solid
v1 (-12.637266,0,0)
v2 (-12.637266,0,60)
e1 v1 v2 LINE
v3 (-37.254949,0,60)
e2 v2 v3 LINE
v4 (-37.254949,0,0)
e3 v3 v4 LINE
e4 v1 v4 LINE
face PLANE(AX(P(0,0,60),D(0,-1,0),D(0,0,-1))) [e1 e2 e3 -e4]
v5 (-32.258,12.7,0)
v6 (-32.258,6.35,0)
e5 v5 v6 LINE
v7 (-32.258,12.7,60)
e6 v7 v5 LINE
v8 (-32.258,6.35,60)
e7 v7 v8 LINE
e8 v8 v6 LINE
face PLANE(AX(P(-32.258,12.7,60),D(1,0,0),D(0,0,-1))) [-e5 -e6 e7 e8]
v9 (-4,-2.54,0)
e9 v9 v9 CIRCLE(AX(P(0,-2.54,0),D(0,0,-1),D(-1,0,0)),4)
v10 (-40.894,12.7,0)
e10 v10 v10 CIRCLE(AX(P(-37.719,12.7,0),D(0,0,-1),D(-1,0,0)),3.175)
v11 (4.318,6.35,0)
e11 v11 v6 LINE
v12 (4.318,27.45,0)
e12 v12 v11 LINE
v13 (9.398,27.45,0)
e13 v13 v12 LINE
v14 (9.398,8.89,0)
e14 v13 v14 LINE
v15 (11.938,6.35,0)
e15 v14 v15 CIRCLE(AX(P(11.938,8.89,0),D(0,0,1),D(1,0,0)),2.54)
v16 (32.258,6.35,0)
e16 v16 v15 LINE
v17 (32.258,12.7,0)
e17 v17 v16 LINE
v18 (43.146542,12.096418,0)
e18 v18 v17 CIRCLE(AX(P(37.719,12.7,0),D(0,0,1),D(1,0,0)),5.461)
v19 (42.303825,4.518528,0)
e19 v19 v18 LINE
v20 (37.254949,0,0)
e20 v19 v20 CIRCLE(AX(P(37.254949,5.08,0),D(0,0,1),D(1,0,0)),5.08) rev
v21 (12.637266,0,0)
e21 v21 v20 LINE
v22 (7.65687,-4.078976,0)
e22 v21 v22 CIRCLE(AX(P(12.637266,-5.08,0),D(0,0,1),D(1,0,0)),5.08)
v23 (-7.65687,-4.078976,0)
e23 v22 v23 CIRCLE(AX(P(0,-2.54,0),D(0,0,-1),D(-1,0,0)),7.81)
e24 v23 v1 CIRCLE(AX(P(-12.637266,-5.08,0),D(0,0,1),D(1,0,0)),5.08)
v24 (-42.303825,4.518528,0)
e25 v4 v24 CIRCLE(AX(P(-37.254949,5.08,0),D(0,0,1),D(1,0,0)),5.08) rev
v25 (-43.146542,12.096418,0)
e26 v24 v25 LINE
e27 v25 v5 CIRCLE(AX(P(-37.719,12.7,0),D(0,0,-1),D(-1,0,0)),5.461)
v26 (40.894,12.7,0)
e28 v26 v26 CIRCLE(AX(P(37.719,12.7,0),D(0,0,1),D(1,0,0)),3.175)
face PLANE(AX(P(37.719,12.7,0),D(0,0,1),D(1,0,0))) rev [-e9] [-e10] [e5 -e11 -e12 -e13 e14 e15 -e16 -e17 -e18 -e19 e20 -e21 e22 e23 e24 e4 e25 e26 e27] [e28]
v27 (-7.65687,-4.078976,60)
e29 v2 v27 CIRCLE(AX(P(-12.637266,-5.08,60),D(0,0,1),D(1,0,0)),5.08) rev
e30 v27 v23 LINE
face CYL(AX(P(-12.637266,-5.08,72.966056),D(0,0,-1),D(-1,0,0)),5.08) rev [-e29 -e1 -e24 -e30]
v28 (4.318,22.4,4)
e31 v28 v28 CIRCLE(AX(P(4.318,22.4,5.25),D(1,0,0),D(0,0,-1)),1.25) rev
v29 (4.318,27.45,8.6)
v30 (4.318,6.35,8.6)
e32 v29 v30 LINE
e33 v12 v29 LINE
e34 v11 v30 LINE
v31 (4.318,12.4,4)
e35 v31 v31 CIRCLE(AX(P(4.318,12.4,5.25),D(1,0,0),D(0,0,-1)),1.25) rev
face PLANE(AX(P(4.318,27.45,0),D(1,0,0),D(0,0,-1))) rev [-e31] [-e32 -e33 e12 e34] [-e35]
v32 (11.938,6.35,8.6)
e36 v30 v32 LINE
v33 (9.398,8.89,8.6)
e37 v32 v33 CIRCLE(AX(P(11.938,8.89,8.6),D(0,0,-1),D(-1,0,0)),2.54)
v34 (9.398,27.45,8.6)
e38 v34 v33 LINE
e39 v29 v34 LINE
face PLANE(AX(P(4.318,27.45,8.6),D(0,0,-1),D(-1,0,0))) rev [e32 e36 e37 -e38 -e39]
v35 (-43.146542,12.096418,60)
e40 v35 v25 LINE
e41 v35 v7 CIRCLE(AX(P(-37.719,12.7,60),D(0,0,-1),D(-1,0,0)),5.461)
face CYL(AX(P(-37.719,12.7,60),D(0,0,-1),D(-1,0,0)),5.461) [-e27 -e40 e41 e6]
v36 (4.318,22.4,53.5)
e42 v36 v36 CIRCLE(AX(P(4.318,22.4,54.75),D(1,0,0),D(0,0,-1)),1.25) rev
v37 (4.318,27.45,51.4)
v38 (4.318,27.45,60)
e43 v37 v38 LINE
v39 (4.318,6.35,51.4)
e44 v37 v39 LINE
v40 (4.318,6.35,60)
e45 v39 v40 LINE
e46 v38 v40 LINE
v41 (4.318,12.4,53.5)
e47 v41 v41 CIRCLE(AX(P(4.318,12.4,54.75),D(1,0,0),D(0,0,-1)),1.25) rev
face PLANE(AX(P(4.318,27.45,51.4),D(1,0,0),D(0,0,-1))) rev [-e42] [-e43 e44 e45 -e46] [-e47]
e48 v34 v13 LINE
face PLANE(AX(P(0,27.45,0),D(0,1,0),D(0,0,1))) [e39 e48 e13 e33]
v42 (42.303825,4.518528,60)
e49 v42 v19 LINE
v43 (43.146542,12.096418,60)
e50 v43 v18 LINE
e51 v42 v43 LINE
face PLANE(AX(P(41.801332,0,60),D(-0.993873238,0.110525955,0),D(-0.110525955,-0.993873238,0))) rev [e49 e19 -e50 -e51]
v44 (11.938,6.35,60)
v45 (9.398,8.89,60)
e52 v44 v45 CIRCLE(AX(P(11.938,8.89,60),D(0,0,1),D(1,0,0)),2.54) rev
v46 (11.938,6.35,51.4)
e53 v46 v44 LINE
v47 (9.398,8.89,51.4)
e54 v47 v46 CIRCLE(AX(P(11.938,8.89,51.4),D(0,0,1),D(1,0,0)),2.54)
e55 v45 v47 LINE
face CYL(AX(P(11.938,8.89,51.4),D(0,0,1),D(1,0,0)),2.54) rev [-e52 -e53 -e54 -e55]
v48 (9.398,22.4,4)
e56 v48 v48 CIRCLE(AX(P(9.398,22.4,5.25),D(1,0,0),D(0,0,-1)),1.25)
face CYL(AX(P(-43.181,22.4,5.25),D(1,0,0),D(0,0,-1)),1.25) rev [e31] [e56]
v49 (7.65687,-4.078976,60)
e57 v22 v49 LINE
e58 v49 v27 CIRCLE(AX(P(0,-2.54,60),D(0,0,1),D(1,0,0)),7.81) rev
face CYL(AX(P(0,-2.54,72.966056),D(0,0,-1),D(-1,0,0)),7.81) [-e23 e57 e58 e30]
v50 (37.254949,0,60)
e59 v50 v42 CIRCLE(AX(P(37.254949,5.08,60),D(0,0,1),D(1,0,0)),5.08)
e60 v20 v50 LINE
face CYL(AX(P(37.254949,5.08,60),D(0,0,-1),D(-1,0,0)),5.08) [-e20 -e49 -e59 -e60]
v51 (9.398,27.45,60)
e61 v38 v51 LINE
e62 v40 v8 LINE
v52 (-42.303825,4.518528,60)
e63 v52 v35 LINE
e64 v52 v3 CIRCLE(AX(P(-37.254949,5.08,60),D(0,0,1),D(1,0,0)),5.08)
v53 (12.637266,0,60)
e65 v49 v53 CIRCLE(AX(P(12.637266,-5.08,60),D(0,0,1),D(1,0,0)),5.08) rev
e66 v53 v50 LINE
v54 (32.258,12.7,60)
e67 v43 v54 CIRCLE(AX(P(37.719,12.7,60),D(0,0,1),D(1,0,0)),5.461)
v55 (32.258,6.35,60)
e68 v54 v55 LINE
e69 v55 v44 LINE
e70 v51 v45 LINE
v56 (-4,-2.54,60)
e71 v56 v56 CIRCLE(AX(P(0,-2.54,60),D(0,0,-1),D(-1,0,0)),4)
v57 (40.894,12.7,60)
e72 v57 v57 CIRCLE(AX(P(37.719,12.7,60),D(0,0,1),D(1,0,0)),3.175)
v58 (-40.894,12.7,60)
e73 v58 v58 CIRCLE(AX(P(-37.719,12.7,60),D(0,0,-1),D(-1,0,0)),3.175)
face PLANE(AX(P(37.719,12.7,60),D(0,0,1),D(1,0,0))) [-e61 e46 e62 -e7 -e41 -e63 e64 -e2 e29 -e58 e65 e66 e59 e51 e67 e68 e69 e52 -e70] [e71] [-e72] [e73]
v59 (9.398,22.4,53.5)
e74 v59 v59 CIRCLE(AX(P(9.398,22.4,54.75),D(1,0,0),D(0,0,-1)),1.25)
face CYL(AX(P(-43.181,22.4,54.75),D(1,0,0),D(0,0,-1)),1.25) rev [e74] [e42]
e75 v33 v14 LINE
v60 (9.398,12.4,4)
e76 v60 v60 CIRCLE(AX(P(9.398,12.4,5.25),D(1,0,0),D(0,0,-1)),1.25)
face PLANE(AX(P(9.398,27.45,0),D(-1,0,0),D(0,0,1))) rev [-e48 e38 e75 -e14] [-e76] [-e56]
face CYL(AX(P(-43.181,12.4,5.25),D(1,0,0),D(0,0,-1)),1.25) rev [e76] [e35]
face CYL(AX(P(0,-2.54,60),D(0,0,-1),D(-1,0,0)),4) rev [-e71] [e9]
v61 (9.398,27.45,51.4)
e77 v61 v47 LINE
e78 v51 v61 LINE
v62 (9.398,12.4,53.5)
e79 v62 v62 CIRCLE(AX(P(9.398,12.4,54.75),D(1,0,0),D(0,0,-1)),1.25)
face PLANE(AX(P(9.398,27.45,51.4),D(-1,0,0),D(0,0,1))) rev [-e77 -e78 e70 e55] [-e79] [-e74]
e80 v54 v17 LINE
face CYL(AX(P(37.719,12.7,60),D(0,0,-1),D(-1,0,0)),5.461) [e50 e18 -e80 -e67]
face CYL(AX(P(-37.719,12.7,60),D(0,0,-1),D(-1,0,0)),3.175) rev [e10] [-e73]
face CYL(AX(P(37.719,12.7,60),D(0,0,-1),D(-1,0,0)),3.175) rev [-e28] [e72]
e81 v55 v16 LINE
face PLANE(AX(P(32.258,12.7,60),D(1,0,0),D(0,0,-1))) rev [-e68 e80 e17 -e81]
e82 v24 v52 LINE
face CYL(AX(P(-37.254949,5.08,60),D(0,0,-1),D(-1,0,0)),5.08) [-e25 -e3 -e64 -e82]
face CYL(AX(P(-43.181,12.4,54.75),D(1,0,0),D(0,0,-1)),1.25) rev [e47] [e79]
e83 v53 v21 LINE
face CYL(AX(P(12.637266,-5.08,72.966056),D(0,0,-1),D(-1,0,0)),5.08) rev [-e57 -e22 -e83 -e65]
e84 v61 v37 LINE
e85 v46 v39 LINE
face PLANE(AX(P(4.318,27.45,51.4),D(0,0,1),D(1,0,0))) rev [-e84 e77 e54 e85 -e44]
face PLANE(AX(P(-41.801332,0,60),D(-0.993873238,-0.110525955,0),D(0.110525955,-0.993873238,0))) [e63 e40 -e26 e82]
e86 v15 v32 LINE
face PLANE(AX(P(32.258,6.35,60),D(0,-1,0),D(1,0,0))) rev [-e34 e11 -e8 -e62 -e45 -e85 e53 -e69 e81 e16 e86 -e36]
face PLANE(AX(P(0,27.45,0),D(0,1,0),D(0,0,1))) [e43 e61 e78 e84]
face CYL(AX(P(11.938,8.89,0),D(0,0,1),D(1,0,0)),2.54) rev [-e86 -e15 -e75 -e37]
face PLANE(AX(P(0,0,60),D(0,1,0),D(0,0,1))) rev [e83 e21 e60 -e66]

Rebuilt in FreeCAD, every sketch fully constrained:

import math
import FreeCAD as App
import Part
import Sketcher

V = App.Vector
Q = App.Units.Quantity


def edges_at(feature, points):
    """Names of the edges that pass closest to the given points."""
    edges = feature.Shape.Edges
    near = lambda p: min(range(len(edges)), key=lambda i: edges[i].distToShape(Part.Vertex(*p))[0])
    return sorted({f"Edge{near(p) + 1}" for p in points})

doc = App.newDocument("Part")
params = doc.addObject("Spreadsheet::Sheet", "Params")
for row, (alias, value) in enumerate([
    ("sketch1_diameter", "6.35 mm"),
    ("sketch1_height", "6.35 mm"),
    ("pad1_length", "60 mm"),
    ("sketch2_diameter", "8 mm"),
    ("sketch3_radius", "4 mm"),
    ("sketch3_radius2", "7.81 mm"),
    ("pad2_length", "60 mm"),
    ("sketch4_height", "8.6 mm"),
    ("sketch4_width", "5.08 mm"),
    ("pad3_length", "21.1 mm"),
    ("sketch5_diameter", "2.5 mm"),
    ("sketch6_diameter", "2.5 mm"),
    ("sketch7_diameter", "2.5 mm"),
    ("sketch8_diameter", "2.5 mm"),
    ("fillet_radius", "2.54 mm"),
    ("fillet2_radius", "5.08 mm"),
    ("fillet3_radius", "5.08 mm"),
], start=1):
    params.set(f"A{row}", alias)
    params.set(f"B{row}", "=" + value)
    params.setAlias(f"B{row}", alias)

body = doc.addObject("PartDesign::Body", "Body")

sketch1 = doc.addObject("Sketcher::SketchObject", "Sketch")
body.addObject(sketch1)
sketch1.AttachmentSupport = (doc.XY_Plane, [""])
sketch1.MapMode = "FlatFace"
sketch1.addGeometry(Part.LineSegment(V(0, 0, 0), V(41.801332, 0, 0)), False)
sketch1.addGeometry(Part.LineSegment(V(41.801332, 0, 0), V(43.146542, 12.096418, 0)), False)
sketch1.addGeometry(Part.ArcOfCircle(Part.Circle(V(37.719, 12.7, 0), V(0, 0, 1), 5.461), math.radians(-6.345635), math.radians(180)), False)
sketch1.addGeometry(Part.LineSegment(V(32.258, 12.7, 0), V(32.258, 6.35, 0)), False)
sketch1.addGeometry(Part.LineSegment(V(32.258, 6.35, 0), V(0, 6.35, 0)), False)
sketch1.addGeometry(Part.LineSegment(V(0, 6.35, 0), V(0, 0, 0)), False)
sketch1.addGeometry(Part.Circle(V(37.719, 12.7, 0), V(0, 0, 1), 3.175), False)
sketch1.addConstraint(Sketcher.Constraint("Coincident", 0, 2, 1, 1))
sketch1.addConstraint(Sketcher.Constraint("Tangent", 1, 2, 2, 1))
sketch1.addConstraint(Sketcher.Constraint("Tangent", 2, 2, 3, 1))
sketch1.addConstraint(Sketcher.Constraint("Coincident", 3, 2, 4, 1))
sketch1.addConstraint(Sketcher.Constraint("Coincident", 4, 2, 5, 1))
sketch1.addConstraint(Sketcher.Constraint("Coincident", 5, 2, 0, 1))
sketch1.addConstraint(Sketcher.Constraint("Horizontal", 0))
sketch1.addConstraint(Sketcher.Constraint("Vertical", 3))
sketch1.addConstraint(Sketcher.Constraint("Horizontal", 4))
sketch1.addConstraint(Sketcher.Constraint("Vertical", 5))
sketch1.addConstraint(Sketcher.Constraint("Coincident", 5, 2, -1, 1))
sketch1.addConstraint(Sketcher.Constraint("Coincident", 6, 3, 2, 3))
sketch1.addConstraint(Sketcher.Constraint("Equal", 3, 5))
sketch1.addConstraint(Sketcher.Constraint("Diameter", 6, Q("6.35 mm")))
sketch1.addConstraint(Sketcher.Constraint("Radius", 2, Q("5.461 mm")))
sketch1.addConstraint(Sketcher.Constraint("DistanceY", 3, 2, 3, 1, Q("6.35 mm")))
sketch1.addConstraint(Sketcher.Constraint("DistanceX", 4, 2, 4, 1, Q("32.258 mm")))
sketch1.addConstraint(Sketcher.Constraint("DistanceX", 0, 1, 0, 2, Q("41.801332 mm")))
sketch1.setExpression("Constraints[13]", "Params.sketch1_diameter")
sketch1.setExpression("Constraints[15]", "Params.sketch1_height")
pad1 = doc.addObject("PartDesign::Pad", "Pad")
body.addObject(pad1)
pad1.Profile = sketch1
pad1.setExpression("Length", "Params.pad1_length")

sketch2 = doc.addObject("Sketcher::SketchObject", "Sketch001")
body.addObject(sketch2)
sketch2.AttachmentSupport = (doc.XY_Plane, [""])
sketch2.MapMode = "FlatFace"
sketch2.addGeometry(Part.Circle(V(0, -2.54, 0), V(0, 0, 1), 4), False)
sketch2.addConstraint(Sketcher.Constraint("PointOnObject", 0, 3, -2))
sketch2.addConstraint(Sketcher.Constraint("Diameter", 0, Q("8 mm")))
sketch2.addConstraint(Sketcher.Constraint("DistanceY", 0, 3, -1, 1, Q("2.54 mm")))
sketch2.setExpression("Constraints[1]", "Params.sketch2_diameter")
pocket1 = doc.addObject("PartDesign::Pocket", "Pocket")
body.addObject(pocket1)
pocket1.Profile = sketch2
pocket1.Type = "ThroughAll"
pocket1.Reversed = True

sketch3 = doc.addObject("Sketcher::SketchObject", "Sketch002")
body.addObject(sketch3)
sketch3.AttachmentSupport = (doc.XY_Plane, [""])
sketch3.MapMode = "FlatFace"
sketch3.addGeometry(Part.LineSegment(V(3.090049, 0, 0), V(7.385425, 0, 0)), False)
sketch3.addGeometry(Part.ArcOfCircle(Part.Circle(V(0, -2.54, 0), V(0, 0, 1), 7.81), math.radians(-90), math.radians(18.979151)), False)
sketch3.addGeometry(Part.LineSegment(V(0, -10.35, 0), V(0, -6.54, 0)), False)
sketch3.addGeometry(Part.ArcOfCircle(Part.Circle(V(0, -2.54, 0), V(0, 0, 1), 4), math.radians(-90), math.radians(39.419984)), False)
sketch3.addConstraint(Sketcher.Constraint("Coincident", 0, 2, 1, 2))
sketch3.addConstraint(Sketcher.Constraint("Coincident", 1, 1, 2, 1))
sketch3.addConstraint(Sketcher.Constraint("Coincident", 2, 2, 3, 1))
sketch3.addConstraint(Sketcher.Constraint("Coincident", 3, 2, 0, 1))
sketch3.addConstraint(Sketcher.Constraint("Horizontal", 0))
sketch3.addConstraint(Sketcher.Constraint("Vertical", 2))
sketch3.addConstraint(Sketcher.Constraint("Coincident", 3, 3, 1, 3))
sketch3.addConstraint(Sketcher.Constraint("PointOnObject", 1, 3, -2))
sketch3.addConstraint(Sketcher.Constraint("PointOnObject", 0, 2, -1))
sketch3.addConstraint(Sketcher.Constraint("PointOnObject", 1, 1, -2))
sketch3.addConstraint(Sketcher.Constraint("Radius", 3, Q("4 mm")))
sketch3.addConstraint(Sketcher.Constraint("Radius", 1, Q("7.81 mm")))
sketch3.addConstraint(Sketcher.Constraint("DistanceY", 1, 3, -1, 1, Q("2.54 mm")))
sketch3.setExpression("Constraints[10]", "Params.sketch3_radius")
sketch3.setExpression("Constraints[11]", "Params.sketch3_radius2")
pad2 = doc.addObject("PartDesign::Pad", "Pad001")
body.addObject(pad2)
pad2.Profile = sketch3
pad2.setExpression("Length", "Params.pad2_length")
doc.recompute()

mirrored = doc.addObject("PartDesign::Mirrored", "Mirrored")
body.addObject(mirrored)
mirrored.Originals = [pad1, pocket1, pad2]
mirrored.MirrorPlane = (doc.YZ_Plane, [""])
body.Tip = mirrored

sketch4 = doc.addObject("Sketcher::SketchObject", "Sketch003")
body.addObject(sketch4)
sketch4.AttachmentSupport = (doc.XZ_Plane, [""])
sketch4.MapMode = "FlatFace"
sketch4.AttachmentOffset = App.Placement(V(0, 0, -6.35), App.Rotation())
sketch4.addGeometry(Part.LineSegment(V(4.318, 0, 0), V(4.318, 8.6, 0)), False)
sketch4.addGeometry(Part.LineSegment(V(4.318, 8.6, 0), V(9.398, 8.6, 0)), False)
sketch4.addGeometry(Part.LineSegment(V(9.398, 8.6, 0), V(9.398, 0, 0)), False)
sketch4.addGeometry(Part.LineSegment(V(9.398, 0, 0), V(4.318, 0, 0)), False)
sketch4.addGeometry(Part.LineSegment(V(4.318, 51.4, 0), V(4.318, 60, 0)), False)
sketch4.addGeometry(Part.LineSegment(V(4.318, 60, 0), V(9.398, 60, 0)), False)
sketch4.addGeometry(Part.LineSegment(V(9.398, 60, 0), V(9.398, 51.4, 0)), False)
sketch4.addGeometry(Part.LineSegment(V(9.398, 51.4, 0), V(4.318, 51.4, 0)), False)
sketch4.addConstraint(Sketcher.Constraint("Coincident", 0, 2, 1, 1))
sketch4.addConstraint(Sketcher.Constraint("Coincident", 1, 2, 2, 1))
sketch4.addConstraint(Sketcher.Constraint("Coincident", 2, 2, 3, 1))
sketch4.addConstraint(Sketcher.Constraint("Coincident", 3, 2, 0, 1))
sketch4.addConstraint(Sketcher.Constraint("Coincident", 4, 2, 5, 1))
sketch4.addConstraint(Sketcher.Constraint("Coincident", 5, 2, 6, 1))
sketch4.addConstraint(Sketcher.Constraint("Coincident", 6, 2, 7, 1))
sketch4.addConstraint(Sketcher.Constraint("Coincident", 7, 2, 4, 1))
sketch4.addConstraint(Sketcher.Constraint("Vertical", 0))
sketch4.addConstraint(Sketcher.Constraint("Horizontal", 1))
sketch4.addConstraint(Sketcher.Constraint("Vertical", 2))
sketch4.addConstraint(Sketcher.Constraint("Horizontal", 3))
sketch4.addConstraint(Sketcher.Constraint("Vertical", 4))
sketch4.addConstraint(Sketcher.Constraint("Horizontal", 5))
sketch4.addConstraint(Sketcher.Constraint("Vertical", 6))
sketch4.addConstraint(Sketcher.Constraint("Horizontal", 7))
sketch4.addConstraint(Sketcher.Constraint("PointOnObject", 2, 2, -1))
sketch4.addConstraint(Sketcher.Constraint("Vertical", 3, 2, 4, 2))
sketch4.addConstraint(Sketcher.Constraint("Vertical", 2, 2, 5, 2))
sketch4.addConstraint(Sketcher.Constraint("Equal", 2, 4))
sketch4.addConstraint(Sketcher.Constraint("DistanceY", 0, 1, 0, 2, Q("8.6 mm")))
sketch4.addConstraint(Sketcher.Constraint("DistanceY", -1, 1, 4, 2, Q("60 mm")))
sketch4.addConstraint(Sketcher.Constraint("DistanceX", 1, 1, 1, 2, Q("5.08 mm")))
sketch4.addConstraint(Sketcher.Constraint("DistanceX", -1, 1, 0, 2, Q("4.318 mm")))
sketch4.setExpression("Constraints[20]", "Params.sketch4_height")
sketch4.setExpression("Constraints[22]", "Params.sketch4_width")
pad3 = doc.addObject("PartDesign::Pad", "Pad002")
body.addObject(pad3)
pad3.Profile = sketch4
pad3.setExpression("Length", "Params.pad3_length")
pad3.Reversed = True

sketch5 = doc.addObject("Sketcher::SketchObject", "Sketch004")
body.addObject(sketch5)
sketch5.AttachmentSupport = (doc.YZ_Plane, [""])
sketch5.MapMode = "FlatFace"
sketch5.AttachmentOffset = App.Placement(V(0, 0, 9.398), App.Rotation())
sketch5.addGeometry(Part.Circle(V(22.4, 54.75, 0), V(0, 0, 1), 1.25), False)
sketch5.addConstraint(Sketcher.Constraint("Diameter", 0, Q("2.5 mm")))
sketch5.addConstraint(Sketcher.Constraint("DistanceX", -1, 1, 0, 3, Q("22.4 mm")))
sketch5.addConstraint(Sketcher.Constraint("DistanceY", -1, 1, 0, 3, Q("54.75 mm")))
sketch5.setExpression("Constraints[0]", "Params.sketch5_diameter")
pocket2 = doc.addObject("PartDesign::Pocket", "Pocket001")
body.addObject(pocket2)
pocket2.Profile = sketch5
pocket2.Type = "UpToFirst"

sketch6 = doc.addObject("Sketcher::SketchObject", "Sketch005")
body.addObject(sketch6)
sketch6.AttachmentSupport = (doc.YZ_Plane, [""])
sketch6.MapMode = "FlatFace"
sketch6.AttachmentOffset = App.Placement(V(0, 0, 9.398), App.Rotation())
sketch6.addGeometry(Part.Circle(V(22.4, 5.25, 0), V(0, 0, 1), 1.25), False)
sketch6.addConstraint(Sketcher.Constraint("Diameter", 0, Q("2.5 mm")))
sketch6.addConstraint(Sketcher.Constraint("DistanceX", -1, 1, 0, 3, Q("22.4 mm")))
sketch6.addConstraint(Sketcher.Constraint("DistanceY", -1, 1, 0, 3, Q("5.25 mm")))
sketch6.setExpression("Constraints[0]", "Params.sketch6_diameter")
pocket3 = doc.addObject("PartDesign::Pocket", "Pocket002")
body.addObject(pocket3)
pocket3.Profile = sketch6
pocket3.Type = "UpToFirst"

sketch7 = doc.addObject("Sketcher::SketchObject", "Sketch006")
body.addObject(sketch7)
sketch7.AttachmentSupport = (doc.YZ_Plane, [""])
sketch7.MapMode = "FlatFace"
sketch7.AttachmentOffset = App.Placement(V(0, 0, 9.398), App.Rotation())
sketch7.addGeometry(Part.Circle(V(12.4, 5.25, 0), V(0, 0, 1), 1.25), False)
sketch7.addConstraint(Sketcher.Constraint("Diameter", 0, Q("2.5 mm")))
sketch7.addConstraint(Sketcher.Constraint("DistanceX", -1, 1, 0, 3, Q("12.4 mm")))
sketch7.addConstraint(Sketcher.Constraint("DistanceY", -1, 1, 0, 3, Q("5.25 mm")))
sketch7.setExpression("Constraints[0]", "Params.sketch7_diameter")
pocket4 = doc.addObject("PartDesign::Pocket", "Pocket003")
body.addObject(pocket4)
pocket4.Profile = sketch7
pocket4.Type = "UpToFirst"

sketch8 = doc.addObject("Sketcher::SketchObject", "Sketch007")
body.addObject(sketch8)
sketch8.AttachmentSupport = (doc.YZ_Plane, [""])
sketch8.MapMode = "FlatFace"
sketch8.AttachmentOffset = App.Placement(V(0, 0, 9.398), App.Rotation())
sketch8.addGeometry(Part.Circle(V(12.4, 54.75, 0), V(0, 0, 1), 1.25), False)
sketch8.addConstraint(Sketcher.Constraint("Diameter", 0, Q("2.5 mm")))
sketch8.addConstraint(Sketcher.Constraint("DistanceX", -1, 1, 0, 3, Q("12.4 mm")))
sketch8.addConstraint(Sketcher.Constraint("DistanceY", -1, 1, 0, 3, Q("54.75 mm")))
sketch8.setExpression("Constraints[0]", "Params.sketch8_diameter")
pocket5 = doc.addObject("PartDesign::Pocket", "Pocket004")
body.addObject(pocket5)
pocket5.Profile = sketch8
pocket5.Type = "UpToFirst"
doc.recompute()

fillet = doc.addObject("PartDesign::Fillet", "Fillet")
body.addObject(fillet)
fillet.Base = (pocket5, edges_at(pocket5, [(9.398, 6.35, 55.7), (9.398, 6.35, 4.3)]))
fillet.setExpression("Radius", "Params.fillet_radius")
doc.recompute()

fillet2 = doc.addObject("PartDesign::Fillet", "Fillet001")
body.addObject(fillet2)
fillet2.Base = (fillet, edges_at(fillet, [(7.385, 0, 30), (-7.385, 0, 30)]))
fillet2.setExpression("Radius", "Params.fillet2_radius")
doc.recompute()

fillet3 = doc.addObject("PartDesign::Fillet", "Fillet002")
body.addObject(fillet3)
fillet3.Base = (fillet2, edges_at(fillet2, [(41.801, 0, 30), (-41.801, 0, 30)]))
fillet3.setExpression("Radius", "Params.fillet3_radius")

doc.recompute()
